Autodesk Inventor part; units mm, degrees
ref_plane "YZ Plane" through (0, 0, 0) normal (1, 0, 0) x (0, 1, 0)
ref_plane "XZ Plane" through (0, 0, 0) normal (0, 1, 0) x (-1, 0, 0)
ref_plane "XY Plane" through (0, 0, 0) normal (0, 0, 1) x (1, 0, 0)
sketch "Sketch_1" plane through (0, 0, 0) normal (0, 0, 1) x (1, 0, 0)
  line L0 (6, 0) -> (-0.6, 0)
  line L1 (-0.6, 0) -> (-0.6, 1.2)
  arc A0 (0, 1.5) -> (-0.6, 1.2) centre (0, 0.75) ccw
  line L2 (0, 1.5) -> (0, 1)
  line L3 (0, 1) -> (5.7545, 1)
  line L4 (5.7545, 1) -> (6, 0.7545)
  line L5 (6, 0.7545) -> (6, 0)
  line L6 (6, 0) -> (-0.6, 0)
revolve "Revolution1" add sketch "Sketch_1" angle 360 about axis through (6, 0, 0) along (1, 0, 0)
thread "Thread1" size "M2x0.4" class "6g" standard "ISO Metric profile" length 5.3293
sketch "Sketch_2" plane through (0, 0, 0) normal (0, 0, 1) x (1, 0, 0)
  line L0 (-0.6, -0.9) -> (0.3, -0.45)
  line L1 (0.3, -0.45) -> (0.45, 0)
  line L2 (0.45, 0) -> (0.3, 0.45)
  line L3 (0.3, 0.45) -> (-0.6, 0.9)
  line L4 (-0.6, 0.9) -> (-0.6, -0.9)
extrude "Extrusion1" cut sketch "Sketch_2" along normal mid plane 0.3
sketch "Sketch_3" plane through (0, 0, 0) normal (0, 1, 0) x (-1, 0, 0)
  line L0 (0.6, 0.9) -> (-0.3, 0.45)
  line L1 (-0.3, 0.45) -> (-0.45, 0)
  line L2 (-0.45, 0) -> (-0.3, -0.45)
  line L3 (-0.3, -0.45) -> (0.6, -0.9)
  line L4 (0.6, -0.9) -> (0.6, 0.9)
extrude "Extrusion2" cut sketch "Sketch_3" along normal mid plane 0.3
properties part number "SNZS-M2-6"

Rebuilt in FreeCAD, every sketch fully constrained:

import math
import FreeCAD as App
import Part
import Sketcher

V = App.Vector
Q = App.Units.Quantity


def add_polygon(sketch, points):
    """Adds a closed chain of lines whose ends are joined by coincident constraints."""
    first, n = sketch.GeometryCount, len(points)
    for a, b in zip(points, points[1:] + points[:1]):
        sketch.addGeometry(Part.LineSegment(App.Vector(*a, 0), App.Vector(*b, 0)), False)
    for i in range(n):
        sketch.addConstraint(Sketcher.Constraint("Coincident", first + i, 2, first + (i + 1) % n, 1))

doc = App.newDocument("Part")
body = doc.addObject("PartDesign::Body", "Body")

# Sketch on XY plane
sketch1 = body.newObject("Sketcher::SketchObject", "Sketch")
sketch1.AttachmentSupport = (doc.getObject("XY_Plane"), [""])
sketch1.MapMode = "FlatFace"
sketch1.addGeometry(Part.LineSegment(V(-0.6, 0, 0), V(6, 0, 0)), False)
sketch1.addGeometry(Part.LineSegment(V(6, 0, 0), V(6, 0.75, 0)), False)
sketch1.addGeometry(Part.LineSegment(V(6, 0.75, 0), V(5.75, 1, 0)), False)
sketch1.addGeometry(Part.LineSegment(V(5.75, 1, 0), V(0, 1, 0)), False)
sketch1.addGeometry(Part.LineSegment(V(0, 1, 0), V(0, 1.5, 0)), False)
sketch1.addGeometry(Part.ArcOfCircle(Part.Circle(V(0, 0.75, 0), V(0, 0, 1), 0.75), math.radians(90), math.radians(143)), False)
sketch1.addGeometry(Part.LineSegment(V(-0.6, 1.2, 0), V(-0.6, 0, 0)), False)
sketch1.addConstraint(Sketcher.Constraint("Coincident", 0, 2, 1, 1))
sketch1.addConstraint(Sketcher.Constraint("Coincident", 1, 2, 2, 1))
sketch1.addConstraint(Sketcher.Constraint("Coincident", 2, 2, 3, 1))
sketch1.addConstraint(Sketcher.Constraint("Coincident", 3, 2, 4, 1))
sketch1.addConstraint(Sketcher.Constraint("Coincident", 4, 2, 5, 1))
sketch1.addConstraint(Sketcher.Constraint("Coincident", 5, 2, 6, 1))
sketch1.addConstraint(Sketcher.Constraint("Coincident", 6, 2, 0, 1))
sketch1.addConstraint(Sketcher.Constraint("Horizontal", 0))
sketch1.addConstraint(Sketcher.Constraint("Vertical", 1))
sketch1.addConstraint(Sketcher.Constraint("Horizontal", 3))
sketch1.addConstraint(Sketcher.Constraint("Vertical", 4))
sketch1.addConstraint(Sketcher.Constraint("Vertical", 6))
sketch1.addConstraint(Sketcher.Constraint("PointOnObject", 5, 3, -2))
sketch1.addConstraint(Sketcher.Constraint("PointOnObject", 0, 2, -1))
sketch1.addConstraint(Sketcher.Constraint("PointOnObject", 3, 2, -2))
sketch1.addConstraint(Sketcher.Constraint("Angle", 2, Q("135 deg")))
sketch1.addConstraint(Sketcher.Constraint("Radius", 5, Q("0.75 mm")))
sketch1.addConstraint(Sketcher.Constraint("DistanceX", 0, 1, 0, 2, Q("6.6 mm")))
sketch1.addConstraint(Sketcher.Constraint("DistanceY", 4, 1, 4, 2, Q("0.5 mm")))
sketch1.addConstraint(Sketcher.Constraint("DistanceY", 6, 2, 6, 1, Q("1.2 mm")))
sketch1.addConstraint(Sketcher.Constraint("DistanceX", -1, 1, 0, 2, Q("6 mm")))
sketch1.addConstraint(Sketcher.Constraint("DistanceX", 3, 2, 3, 1, Q("5.7545 mm")))
revolution = body.newObject("PartDesign::Revolution", "Revolution")
revolution.Profile = sketch1
revolution.ReferenceAxis = (sketch1, ["H_Axis"])
revolution.Angle = 360

# Sketch on XY plane
sketch2 = body.newObject("Sketcher::SketchObject", "Sketch001")
sketch2.AttachmentSupport = (doc.getObject("XY_Plane"), [""])
sketch2.MapMode = "FlatFace"
add_polygon(sketch2, [(-0.6, 0.9), (-0.6, -0.9), (0.3, -0.45), (0.45, 0), (0.3, 0.45)])  # lines 0-4
sketch2.addConstraint(Sketcher.Constraint("Vertical", 0))
sketch2.addConstraint(Sketcher.Constraint("Symmetric", 1, 2, 3, 2, -1))
sketch2.addConstraint(Sketcher.Constraint("PointOnObject", 2, 2, -1))
sketch2.addConstraint(Sketcher.Constraint("Equal", 1, 4))
sketch2.addConstraint(Sketcher.Constraint("DistanceY", 0, 2, 0, 1, Q("1.8 mm")))
sketch2.addConstraint(Sketcher.Constraint("DistanceX", 0, 2, -1, 1, Q("0.6 mm")))
sketch2.addConstraint(Sketcher.Constraint("DistanceX", -1, 1, 1, 2, Q("0.3 mm")))
sketch2.addConstraint(Sketcher.Constraint("DistanceY", 1, 2, 3, 2, Q("0.9 mm")))
sketch2.addConstraint(Sketcher.Constraint("DistanceX", -1, 1, 2, 2, Q("0.45 mm")))
pocket1 = body.newObject("PartDesign::Pocket", "Pocket")
pocket1.Profile = sketch2
pocket1.Length = 0.3
pocket1.Midplane = True

# Sketch on XZ plane
sketch3 = body.newObject("Sketcher::SketchObject", "Sketch002")
sketch3.AttachmentSupport = (doc.getObject("XZ_Plane"), [""])
sketch3.MapMode = "FlatFace"
add_polygon(sketch3, [(-0.6, -0.9), (-0.6, 0.9), (0.3, 0.45), (0.45, 0), (0.3, -0.45)])  # lines 0-4
sketch3.addConstraint(Sketcher.Constraint("Vertical", 0))
sketch3.addConstraint(Sketcher.Constraint("Symmetric", 1, 2, 3, 2, -1))
sketch3.addConstraint(Sketcher.Constraint("PointOnObject", 2, 2, -1))
sketch3.addConstraint(Sketcher.Constraint("Equal", 1, 4))
sketch3.addConstraint(Sketcher.Constraint("DistanceY", 0, 1, 0, 2, Q("1.8 mm")))
sketch3.addConstraint(Sketcher.Constraint("DistanceX", 0, 2, -1, 1, Q("0.6 mm")))
sketch3.addConstraint(Sketcher.Constraint("DistanceX", -1, 1, 1, 2, Q("0.3 mm")))
sketch3.addConstraint(Sketcher.Constraint("DistanceY", 3, 2, 1, 2, Q("0.9 mm")))
sketch3.addConstraint(Sketcher.Constraint("DistanceX", -1, 1, 2, 2, Q("0.45 mm")))
pocket2 = body.newObject("PartDesign::Pocket", "Pocket001")
pocket2.Profile = sketch3
pocket2.Length = 0.3
pocket2.Midplane = True

doc.recompute()
